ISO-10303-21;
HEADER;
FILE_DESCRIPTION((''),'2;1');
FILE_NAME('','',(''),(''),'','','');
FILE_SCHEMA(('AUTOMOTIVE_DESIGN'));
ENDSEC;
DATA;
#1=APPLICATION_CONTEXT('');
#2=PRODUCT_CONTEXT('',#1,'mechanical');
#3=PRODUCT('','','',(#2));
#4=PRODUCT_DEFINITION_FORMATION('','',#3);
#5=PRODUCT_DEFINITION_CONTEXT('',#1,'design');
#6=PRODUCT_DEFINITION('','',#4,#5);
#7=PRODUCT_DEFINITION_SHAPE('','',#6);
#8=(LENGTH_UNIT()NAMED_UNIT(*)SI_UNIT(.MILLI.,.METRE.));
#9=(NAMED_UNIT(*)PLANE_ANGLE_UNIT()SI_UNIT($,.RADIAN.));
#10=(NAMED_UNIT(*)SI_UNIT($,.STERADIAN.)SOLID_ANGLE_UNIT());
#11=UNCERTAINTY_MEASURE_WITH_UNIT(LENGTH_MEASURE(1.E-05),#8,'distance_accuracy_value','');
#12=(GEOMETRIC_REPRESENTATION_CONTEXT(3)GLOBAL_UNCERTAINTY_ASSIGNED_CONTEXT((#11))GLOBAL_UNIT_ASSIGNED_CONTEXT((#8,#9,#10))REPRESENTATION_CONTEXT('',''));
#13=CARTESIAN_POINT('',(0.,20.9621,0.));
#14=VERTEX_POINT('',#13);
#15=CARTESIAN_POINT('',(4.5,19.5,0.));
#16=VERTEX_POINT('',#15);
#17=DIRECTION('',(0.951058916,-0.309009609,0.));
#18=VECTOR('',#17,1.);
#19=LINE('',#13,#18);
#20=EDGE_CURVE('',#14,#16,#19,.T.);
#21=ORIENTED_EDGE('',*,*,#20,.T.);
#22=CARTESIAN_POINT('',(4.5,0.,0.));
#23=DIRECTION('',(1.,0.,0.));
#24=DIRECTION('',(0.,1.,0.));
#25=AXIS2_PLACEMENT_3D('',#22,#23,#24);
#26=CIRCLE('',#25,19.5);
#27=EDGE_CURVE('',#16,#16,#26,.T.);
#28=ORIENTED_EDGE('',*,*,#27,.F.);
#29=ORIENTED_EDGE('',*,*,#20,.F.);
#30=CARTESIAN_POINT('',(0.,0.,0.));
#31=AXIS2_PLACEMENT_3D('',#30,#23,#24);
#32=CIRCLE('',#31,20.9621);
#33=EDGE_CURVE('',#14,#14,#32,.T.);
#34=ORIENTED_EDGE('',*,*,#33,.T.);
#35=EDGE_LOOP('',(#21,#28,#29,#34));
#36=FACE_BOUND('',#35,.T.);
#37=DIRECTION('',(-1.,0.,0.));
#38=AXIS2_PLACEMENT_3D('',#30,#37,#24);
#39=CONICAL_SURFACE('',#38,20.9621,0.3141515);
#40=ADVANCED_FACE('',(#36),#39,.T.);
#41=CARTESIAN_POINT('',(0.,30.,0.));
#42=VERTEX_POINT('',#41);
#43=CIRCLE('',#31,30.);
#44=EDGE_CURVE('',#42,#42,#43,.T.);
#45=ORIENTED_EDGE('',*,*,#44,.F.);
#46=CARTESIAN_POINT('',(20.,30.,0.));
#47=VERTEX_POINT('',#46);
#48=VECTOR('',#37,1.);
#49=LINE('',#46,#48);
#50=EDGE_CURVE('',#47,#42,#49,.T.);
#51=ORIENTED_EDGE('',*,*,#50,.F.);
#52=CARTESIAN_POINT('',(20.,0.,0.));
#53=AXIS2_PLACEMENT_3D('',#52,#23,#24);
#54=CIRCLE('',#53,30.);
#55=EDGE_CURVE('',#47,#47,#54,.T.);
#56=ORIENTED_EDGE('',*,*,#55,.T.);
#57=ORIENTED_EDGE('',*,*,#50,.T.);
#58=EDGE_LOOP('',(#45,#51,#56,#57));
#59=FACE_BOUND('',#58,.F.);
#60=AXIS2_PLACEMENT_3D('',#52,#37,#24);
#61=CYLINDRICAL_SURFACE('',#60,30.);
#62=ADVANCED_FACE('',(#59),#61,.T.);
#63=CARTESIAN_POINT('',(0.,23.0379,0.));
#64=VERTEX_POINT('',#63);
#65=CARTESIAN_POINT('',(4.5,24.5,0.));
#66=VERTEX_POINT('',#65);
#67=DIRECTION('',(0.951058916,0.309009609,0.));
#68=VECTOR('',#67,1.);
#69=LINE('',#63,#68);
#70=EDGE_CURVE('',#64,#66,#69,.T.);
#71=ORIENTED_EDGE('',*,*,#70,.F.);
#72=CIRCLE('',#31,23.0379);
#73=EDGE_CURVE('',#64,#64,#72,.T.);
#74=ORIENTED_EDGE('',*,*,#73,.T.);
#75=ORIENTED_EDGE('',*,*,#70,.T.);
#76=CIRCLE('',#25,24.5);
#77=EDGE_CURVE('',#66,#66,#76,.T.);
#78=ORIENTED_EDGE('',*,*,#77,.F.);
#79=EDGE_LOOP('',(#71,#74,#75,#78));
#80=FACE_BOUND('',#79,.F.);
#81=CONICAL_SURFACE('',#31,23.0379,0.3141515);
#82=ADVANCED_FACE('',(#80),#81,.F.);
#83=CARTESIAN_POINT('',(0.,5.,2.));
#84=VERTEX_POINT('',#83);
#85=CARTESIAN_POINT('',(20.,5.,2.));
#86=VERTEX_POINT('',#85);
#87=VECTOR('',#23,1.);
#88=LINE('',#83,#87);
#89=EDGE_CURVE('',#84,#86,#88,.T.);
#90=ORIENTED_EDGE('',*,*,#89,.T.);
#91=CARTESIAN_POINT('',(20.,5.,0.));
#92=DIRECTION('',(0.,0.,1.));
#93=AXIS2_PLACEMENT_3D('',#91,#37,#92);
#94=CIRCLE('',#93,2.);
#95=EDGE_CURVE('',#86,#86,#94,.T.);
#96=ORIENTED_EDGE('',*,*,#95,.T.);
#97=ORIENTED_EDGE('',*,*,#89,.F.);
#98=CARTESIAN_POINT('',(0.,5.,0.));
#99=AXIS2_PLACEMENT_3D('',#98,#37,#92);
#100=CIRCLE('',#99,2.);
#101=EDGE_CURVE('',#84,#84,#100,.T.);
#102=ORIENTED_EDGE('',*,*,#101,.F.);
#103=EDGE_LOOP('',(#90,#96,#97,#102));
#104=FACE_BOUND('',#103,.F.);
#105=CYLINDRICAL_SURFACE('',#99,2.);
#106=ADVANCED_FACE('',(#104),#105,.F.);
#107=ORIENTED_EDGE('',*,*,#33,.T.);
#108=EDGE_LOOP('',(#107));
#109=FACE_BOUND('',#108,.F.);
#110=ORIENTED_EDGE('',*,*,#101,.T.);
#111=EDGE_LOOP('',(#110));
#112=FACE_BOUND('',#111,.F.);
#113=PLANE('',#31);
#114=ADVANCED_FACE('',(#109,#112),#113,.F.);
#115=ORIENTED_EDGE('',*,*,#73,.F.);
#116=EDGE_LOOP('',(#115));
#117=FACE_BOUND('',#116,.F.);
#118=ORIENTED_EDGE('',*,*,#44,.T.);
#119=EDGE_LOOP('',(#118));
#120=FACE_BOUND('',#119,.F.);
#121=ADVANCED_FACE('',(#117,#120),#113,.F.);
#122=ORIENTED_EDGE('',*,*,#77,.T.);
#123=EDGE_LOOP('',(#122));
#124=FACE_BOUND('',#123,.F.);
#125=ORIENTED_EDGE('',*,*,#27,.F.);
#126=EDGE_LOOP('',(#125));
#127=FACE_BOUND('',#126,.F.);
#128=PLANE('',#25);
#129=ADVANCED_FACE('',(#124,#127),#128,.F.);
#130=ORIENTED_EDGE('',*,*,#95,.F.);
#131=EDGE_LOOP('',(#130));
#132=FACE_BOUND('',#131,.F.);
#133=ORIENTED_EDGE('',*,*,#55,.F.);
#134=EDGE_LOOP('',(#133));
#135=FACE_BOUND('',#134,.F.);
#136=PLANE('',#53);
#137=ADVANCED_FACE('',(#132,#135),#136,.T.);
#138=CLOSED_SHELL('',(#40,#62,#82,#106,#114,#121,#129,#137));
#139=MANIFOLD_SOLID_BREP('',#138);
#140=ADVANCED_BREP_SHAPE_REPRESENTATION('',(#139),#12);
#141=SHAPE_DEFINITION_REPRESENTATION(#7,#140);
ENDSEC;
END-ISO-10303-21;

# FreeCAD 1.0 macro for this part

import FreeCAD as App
import Part
import Sketcher

V = App.Vector
Q = App.Units.Quantity


def add_polygon(sketch, points):
    """Adds a closed chain of lines whose ends are joined by coincident constraints."""
    first, n = sketch.GeometryCount, len(points)
    for a, b in zip(points, points[1:] + points[:1]):
        sketch.addGeometry(Part.LineSegment(App.Vector(*a, 0), App.Vector(*b, 0)), False)
    for i in range(n):
        sketch.addConstraint(Sketcher.Constraint("Coincident", first + i, 2, first + (i + 1) % n, 1))

doc = App.newDocument("Part")
body = doc.addObject("PartDesign::Body", "Body")

# Sketch on XY plane
sketch1 = body.newObject("Sketcher::SketchObject", "Sketch")
sketch1.AttachmentSupport = (doc.getObject("XY_Plane"), [""])
sketch1.MapMode = "FlatFace"
add_polygon(sketch1, [(0, 30), (0, 0), (20, 0), (20, 30)])  # lines 0-3
sketch1.addConstraint([
    Sketcher.Constraint("Vertical", 0),
    Sketcher.Constraint("Horizontal", 1),
    Sketcher.Constraint("Vertical", 2),
    Sketcher.Constraint("Horizontal", 3),
    Sketcher.Constraint("Coincident", 0, 2, -1, 1),
    Sketcher.Constraint("DistanceX", 1, 1, 1, 2, Q("20 mm")),
    Sketcher.Constraint("DistanceY", 0, 2, 0, 1, Q("30 mm")),
])
revolution = body.newObject("PartDesign::Revolution", "Revolution")
revolution.Profile = sketch1
revolution.ReferenceAxis = (sketch1, ["H_Axis"])
revolution.Angle = 360

# Sketch on YZ plane
sketch2 = body.newObject("Sketcher::SketchObject", "Sketch001")
sketch2.AttachmentSupport = (doc.getObject("YZ_Plane"), [""])
sketch2.MapMode = "FlatFace"
sketch2.addGeometry(Part.Circle(V(5, 0, 0), V(0, 0, 1), 2), False)
sketch2.addConstraint([
    Sketcher.Constraint("PointOnObject", 0, 3, -1),
    Sketcher.Constraint("Diameter", 0, Q("4 mm")),
    Sketcher.Constraint("DistanceX", -1, 1, 0, 3, Q("5 mm")),
])
pocket1 = body.newObject("PartDesign::Pocket", "Pocket")
pocket1.Profile = sketch2
pocket1.Length = 20
pocket1.Reversed = True

# Sketch on XY plane
sketch3 = body.newObject("Sketcher::SketchObject", "Sketch002")
sketch3.AttachmentSupport = (doc.getObject("XY_Plane"), [""])
sketch3.MapMode = "FlatFace"
add_polygon(sketch3, [(4.5, 24.5), (0, 23), (0, 21), (4.5, 19.5)])  # lines 0-3
sketch3.addConstraint([
    Sketcher.Constraint("Vertical", 1),
    Sketcher.Constraint("Vertical", 3),
    Sketcher.Constraint("PointOnObject", 0, 2, -2),
    Sketcher.Constraint("Equal", 0, 2),
    Sketcher.Constraint("DistanceX", -1, 1, 2, 2, Q("4.5 mm")),
    Sketcher.Constraint("DistanceY", 3, 1, 3, 2, Q("5 mm")),
    Sketcher.Constraint("Angle", 0, Q("-162.0004 deg")),
    Sketcher.Constraint("DistanceY", -1, 1, 2, 2, Q("19.5 mm")),
])
groove = body.newObject("PartDesign::Groove", "Groove")
groove.Profile = sketch3
groove.ReferenceAxis = (sketch3, ["H_Axis"])
groove.Angle = 360

doc.recompute()
